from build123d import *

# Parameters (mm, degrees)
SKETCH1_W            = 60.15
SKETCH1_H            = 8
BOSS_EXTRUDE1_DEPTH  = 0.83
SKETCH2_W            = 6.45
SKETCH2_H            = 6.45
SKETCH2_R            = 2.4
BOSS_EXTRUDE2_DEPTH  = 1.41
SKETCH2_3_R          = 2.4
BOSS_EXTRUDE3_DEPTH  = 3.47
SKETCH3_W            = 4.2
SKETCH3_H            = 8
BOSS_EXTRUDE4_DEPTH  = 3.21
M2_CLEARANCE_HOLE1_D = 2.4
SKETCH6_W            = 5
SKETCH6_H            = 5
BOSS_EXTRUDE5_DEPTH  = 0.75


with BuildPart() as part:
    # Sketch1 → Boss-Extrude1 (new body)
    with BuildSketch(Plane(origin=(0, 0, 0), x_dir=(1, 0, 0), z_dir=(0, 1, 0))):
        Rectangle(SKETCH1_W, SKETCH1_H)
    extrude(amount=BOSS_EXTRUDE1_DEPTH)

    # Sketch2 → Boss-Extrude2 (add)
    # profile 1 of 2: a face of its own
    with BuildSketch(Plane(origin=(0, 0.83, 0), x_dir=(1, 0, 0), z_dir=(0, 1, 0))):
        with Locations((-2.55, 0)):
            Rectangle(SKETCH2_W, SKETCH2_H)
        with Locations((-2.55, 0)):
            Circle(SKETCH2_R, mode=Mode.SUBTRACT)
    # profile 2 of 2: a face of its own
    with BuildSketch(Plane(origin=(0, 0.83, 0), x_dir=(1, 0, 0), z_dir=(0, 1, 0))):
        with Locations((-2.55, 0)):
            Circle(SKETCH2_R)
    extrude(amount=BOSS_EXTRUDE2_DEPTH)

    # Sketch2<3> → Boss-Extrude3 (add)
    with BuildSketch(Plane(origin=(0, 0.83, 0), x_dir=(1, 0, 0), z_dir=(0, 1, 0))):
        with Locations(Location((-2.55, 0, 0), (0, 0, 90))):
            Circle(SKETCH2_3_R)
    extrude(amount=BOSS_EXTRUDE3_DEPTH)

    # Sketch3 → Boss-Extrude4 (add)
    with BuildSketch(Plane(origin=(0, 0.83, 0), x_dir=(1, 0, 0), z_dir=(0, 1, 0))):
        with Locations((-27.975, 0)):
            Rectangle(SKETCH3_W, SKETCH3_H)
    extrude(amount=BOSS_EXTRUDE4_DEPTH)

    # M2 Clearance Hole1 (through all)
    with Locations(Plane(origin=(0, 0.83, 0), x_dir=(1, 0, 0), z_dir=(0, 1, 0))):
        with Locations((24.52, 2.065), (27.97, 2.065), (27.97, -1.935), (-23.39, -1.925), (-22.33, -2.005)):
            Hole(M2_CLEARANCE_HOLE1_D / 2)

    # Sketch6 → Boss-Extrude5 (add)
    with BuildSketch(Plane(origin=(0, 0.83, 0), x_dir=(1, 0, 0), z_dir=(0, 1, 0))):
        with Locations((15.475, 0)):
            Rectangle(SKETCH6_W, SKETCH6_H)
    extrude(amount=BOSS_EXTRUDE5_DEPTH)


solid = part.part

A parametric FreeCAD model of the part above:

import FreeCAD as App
import Part
import Sketcher
Q = App.Units.Quantity

doc = App.newDocument("Part")
params = doc.addObject("Spreadsheet::Sheet", "Params")
for row, (alias, value) in enumerate([
    ("sketch1_height", "8 mm"),
    ("sketch1_width", "60.15 mm"),
    ("pad1_length", "0.83 mm"),
    ("sketch2_width", "6.45 mm"),
    ("pad2_length", "1.41 mm"),
    ("sketch3_diameter", "4.8 mm"),
    ("pad3_length", "3.47 mm"),
    ("sketch4_height", "8 mm"),
    ("sketch4_width", "4.2 mm"),
    ("pad4_length", "3.21 mm"),
    ("sketch5_diameter", "2.4 mm"),
    ("hole_diameter", "2.4 mm"),
    ("sketch6_width", "5 mm"),
    ("pad5_length", "0.75 mm"),
], start=1):
    params.set(f"A{row}", alias)
    params.set(f"B{row}", "=" + value)
    params.setAlias(f"B{row}", alias)

body = doc.addObject("PartDesign::Body", "Body")

sketch1 = body.newObject("Sketcher::SketchObject", "Sketch")
sketch1.AttachmentSupport = (doc.getObject("XZ_Plane"), [""])
sketch1.MapMode = "FlatFace"
sketch1.addGeometry(Part.LineSegment(App.Vector(-30, -4, 0), App.Vector(-30, 4, 0)), False)
sketch1.addGeometry(Part.LineSegment(App.Vector(-30, 4, 0), App.Vector(30, 4, 0)), False)
sketch1.addGeometry(Part.LineSegment(App.Vector(30, 4, 0), App.Vector(30, -4, 0)), False)
sketch1.addGeometry(Part.LineSegment(App.Vector(30, -4, 0), App.Vector(-30, -4, 0)), False)
sketch1.addConstraint(Sketcher.Constraint("Coincident", 0, 2, 1, 1))
sketch1.addConstraint(Sketcher.Constraint("Coincident", 1, 2, 2, 1))
sketch1.addConstraint(Sketcher.Constraint("Coincident", 2, 2, 3, 1))
sketch1.addConstraint(Sketcher.Constraint("Coincident", 3, 2, 0, 1))
sketch1.addConstraint(Sketcher.Constraint("Vertical", 0))
sketch1.addConstraint(Sketcher.Constraint("Horizontal", 1))
sketch1.addConstraint(Sketcher.Constraint("Vertical", 2))
sketch1.addConstraint(Sketcher.Constraint("Horizontal", 3))
sketch1.addConstraint(Sketcher.Constraint("Symmetric", 0, 2, 2, 2, -1, 1))
sketch1.addConstraint(Sketcher.Constraint("DistanceY", 0, 1, 0, 2, Q("8 mm")))
sketch1.addConstraint(Sketcher.Constraint("DistanceX", 1, 1, 1, 2, Q("60.15 mm")))
sketch1.setExpression("Constraints[9]", "Params.sketch1_height")
sketch1.setExpression("Constraints[10]", "Params.sketch1_width")
pad1 = body.newObject("PartDesign::Pad", "Pad")
pad1.Profile = sketch1
pad1.setExpression("Length", "Params.pad1_length")
pad1.Reversed = True

sketch2 = body.newObject("Sketcher::SketchObject", "Sketch001")
sketch2.AttachmentSupport = (doc.getObject("XZ_Plane"), [""])
sketch2.MapMode = "FlatFace"
sketch2.AttachmentOffset = App.Placement(App.Vector(0, 0, -0.83), App.Rotation())
sketch2.addGeometry(Part.LineSegment(App.Vector(-6, -3, 0), App.Vector(-6, 3, 0)), False)
sketch2.addGeometry(Part.LineSegment(App.Vector(-6, 3, 0), App.Vector(1, 3, 0)), False)
sketch2.addGeometry(Part.LineSegment(App.Vector(1, 3, 0), App.Vector(1, -3, 0)), False)
sketch2.addGeometry(Part.LineSegment(App.Vector(1, -3, 0), App.Vector(-6, -3, 0)), False)
sketch2.addConstraint(Sketcher.Constraint("Coincident", 0, 2, 1, 1))
sketch2.addConstraint(Sketcher.Constraint("Coincident", 1, 2, 2, 1))
sketch2.addConstraint(Sketcher.Constraint("Coincident", 2, 2, 3, 1))
sketch2.addConstraint(Sketcher.Constraint("Coincident", 3, 2, 0, 1))
sketch2.addConstraint(Sketcher.Constraint("Vertical", 0))
sketch2.addConstraint(Sketcher.Constraint("Horizontal", 1))
sketch2.addConstraint(Sketcher.Constraint("Vertical", 2))
sketch2.addConstraint(Sketcher.Constraint("Horizontal", 3))
sketch2.addConstraint(Sketcher.Constraint("Equal", 3, 0))
sketch2.addConstraint(Sketcher.Constraint("DistanceX", 1, 1, 1, 2, Q("6.45 mm")))
sketch2.addConstraint(Sketcher.Constraint("DistanceX", 0, 2, -1, 1, Q("5.775 mm")))
sketch2.addConstraint(Sketcher.Constraint("DistanceY", -1, 1, 0, 2, Q("3.225 mm")))
sketch2.setExpression("Constraints[9]", "Params.sketch2_width")
pad2 = body.newObject("PartDesign::Pad", "Pad001")
pad2.Profile = sketch2
pad2.setExpression("Length", "Params.pad2_length")
pad2.Reversed = True

sketch3 = body.newObject("Sketcher::SketchObject", "Sketch002")
sketch3.AttachmentSupport = (doc.getObject("XZ_Plane"), [""])
sketch3.MapMode = "FlatFace"
sketch3.AttachmentOffset = App.Placement(App.Vector(0, 0, -0.83), App.Rotation())
sketch3.addGeometry(Part.Circle(App.Vector(-2.5, 0, 0), App.Vector(0, 0, 1), 2.4), False)
sketch3.addConstraint(Sketcher.Constraint("PointOnObject", 0, 3, -1))
sketch3.addConstraint(Sketcher.Constraint("Diameter", 0, Q("4.8 mm")))
sketch3.addConstraint(Sketcher.Constraint("DistanceX", 0, 3, -1, 1, Q("2.55 mm")))
sketch3.setExpression("Constraints[1]", "Params.sketch3_diameter")
pad3 = body.newObject("PartDesign::Pad", "Pad002")
pad3.Profile = sketch3
pad3.setExpression("Length", "Params.pad3_length")
pad3.Reversed = True

sketch4 = body.newObject("Sketcher::SketchObject", "Sketch003")
sketch4.AttachmentSupport = (doc.getObject("XZ_Plane"), [""])
sketch4.MapMode = "FlatFace"
sketch4.AttachmentOffset = App.Placement(App.Vector(0, 0, -0.83), App.Rotation())
sketch4.addGeometry(Part.LineSegment(App.Vector(-30.1, -4, 0), App.Vector(-30.1, 4, 0)), False)
sketch4.addGeometry(Part.LineSegment(App.Vector(-30.1, 4, 0), App.Vector(-25.9, 4, 0)), False)
sketch4.addGeometry(Part.LineSegment(App.Vector(-25.9, 4, 0), App.Vector(-25.9, -4, 0)), False)
sketch4.addGeometry(Part.LineSegment(App.Vector(-25.9, -4, 0), App.Vector(-30.1, -4, 0)), False)
sketch4.addConstraint(Sketcher.Constraint("Coincident", 0, 2, 1, 1))
sketch4.addConstraint(Sketcher.Constraint("Coincident", 1, 2, 2, 1))
sketch4.addConstraint(Sketcher.Constraint("Coincident", 2, 2, 3, 1))
sketch4.addConstraint(Sketcher.Constraint("Coincident", 3, 2, 0, 1))
sketch4.addConstraint(Sketcher.Constraint("Vertical", 0))
sketch4.addConstraint(Sketcher.Constraint("Horizontal", 1))
sketch4.addConstraint(Sketcher.Constraint("Vertical", 2))
sketch4.addConstraint(Sketcher.Constraint("Horizontal", 3))
sketch4.addConstraint(Sketcher.Constraint("DistanceY", 0, 1, 0, 2, Q("8 mm")))
sketch4.addConstraint(Sketcher.Constraint("DistanceX", 1, 1, 1, 2, Q("4.2 mm")))
sketch4.addConstraint(Sketcher.Constraint("DistanceY", -1, 1, 0, 2, Q("4 mm")))
sketch4.addConstraint(Sketcher.Constraint("DistanceX", 0, 2, -1, 1, Q("30.075 mm")))
sketch4.setExpression("Constraints[8]", "Params.sketch4_height")
sketch4.setExpression("Constraints[9]", "Params.sketch4_width")
pad4 = body.newObject("PartDesign::Pad", "Pad003")
pad4.Profile = sketch4
pad4.setExpression("Length", "Params.pad4_length")
pad4.Reversed = True

sketch5 = body.newObject("Sketcher::SketchObject", "Sketch004")
sketch5.AttachmentSupport = (doc.getObject("XZ_Plane"), [""])
sketch5.MapMode = "FlatFace"
sketch5.AttachmentOffset = App.Placement(App.Vector(0, 0, -0.83), App.Rotation())
sketch5.addGeometry(Part.Circle(App.Vector(24.5, -2.1, 0), App.Vector(0, 0, 1), 1.2), False)
sketch5.addGeometry(Part.Circle(App.Vector(28, -2.1, 0), App.Vector(0, 0, 1), 1.2), False)
sketch5.addGeometry(Part.Circle(App.Vector(28, 1.9, 0), App.Vector(0, 0, 1), 1.2), False)
sketch5.addGeometry(Part.Circle(App.Vector(-23.4, 1.9, 0), App.Vector(0, 0, 1), 1.2), False)
sketch5.addGeometry(Part.Circle(App.Vector(-22.3, 2, 0), App.Vector(0, 0, 1), 1.2), False)
sketch5.addConstraint(Sketcher.Constraint("Equal", 0, 1))
sketch5.addConstraint(Sketcher.Constraint("Equal", 1, 2))
sketch5.addConstraint(Sketcher.Constraint("Equal", 2, 3))
sketch5.addConstraint(Sketcher.Constraint("Equal", 3, 4))
sketch5.addConstraint(Sketcher.Constraint("Horizontal", 0, 3, 1, 3))
sketch5.addConstraint(Sketcher.Constraint("Vertical", 1, 3, 2, 3))
sketch5.addConstraint(Sketcher.Constraint("Diameter", 0, Q("2.4 mm")))
sketch5.addConstraint(Sketcher.Constraint("DistanceY", 1, 3, 2, 3, Q("4 mm")))
sketch5.addConstraint(Sketcher.Constraint("DistanceX", 4, 3, 2, 3, Q("50.3 mm")))
sketch5.addConstraint(Sketcher.Constraint("DistanceX", -1, 1, 0, 3, Q("24.52 mm")))
sketch5.addConstraint(Sketcher.Constraint("DistanceX", -1, 1, 1, 3, Q("27.97 mm")))
sketch5.addConstraint(Sketcher.Constraint("DistanceX", 3, 3, -1, 1, Q("23.39 mm")))
sketch5.addConstraint(Sketcher.Constraint("DistanceY", 0, 3, 3, 3, Q("3.99 mm")))
sketch5.addConstraint(Sketcher.Constraint("DistanceY", 3, 3, 4, 3, Q("0.08 mm")))
sketch5.addConstraint(Sketcher.Constraint("DistanceY", 0, 3, -1, 1, Q("2.065 mm")))
sketch5.setExpression("Constraints[6]", "Params.sketch5_diameter")
doc.recompute()
hole = body.newObject("PartDesign::Hole", "Hole")
hole.Profile = sketch5
hole.ThreadType = "None"
hole.setExpression("Diameter", "Params.hole_diameter")
hole.DepthType = "ThroughAll"
hole.Reversed = True

sketch6 = body.newObject("Sketcher::SketchObject", "Sketch005")
sketch6.AttachmentSupport = (doc.getObject("XZ_Plane"), [""])
sketch6.MapMode = "FlatFace"
sketch6.AttachmentOffset = App.Placement(App.Vector(0, 0, -0.83), App.Rotation())
sketch6.addGeometry(Part.LineSegment(App.Vector(13, -2, 0), App.Vector(13, 2, 0)), False)
sketch6.addGeometry(Part.LineSegment(App.Vector(13, 2, 0), App.Vector(18, 2, 0)), False)
sketch6.addGeometry(Part.LineSegment(App.Vector(18, 2, 0), App.Vector(18, -2, 0)), False)
sketch6.addGeometry(Part.LineSegment(App.Vector(18, -2, 0), App.Vector(13, -2, 0)), False)
sketch6.addConstraint(Sketcher.Constraint("Coincident", 0, 2, 1, 1))
sketch6.addConstraint(Sketcher.Constraint("Coincident", 1, 2, 2, 1))
sketch6.addConstraint(Sketcher.Constraint("Coincident", 2, 2, 3, 1))
sketch6.addConstraint(Sketcher.Constraint("Coincident", 3, 2, 0, 1))
sketch6.addConstraint(Sketcher.Constraint("Vertical", 0))
sketch6.addConstraint(Sketcher.Constraint("Horizontal", 1))
sketch6.addConstraint(Sketcher.Constraint("Vertical", 2))
sketch6.addConstraint(Sketcher.Constraint("Horizontal", 3))
sketch6.addConstraint(Sketcher.Constraint("Equal", 3, 0))
sketch6.addConstraint(Sketcher.Constraint("DistanceX", 1, 1, 1, 2, Q("5 mm")))
sketch6.addConstraint(Sketcher.Constraint("DistanceY", -1, 1, 0, 2, Q("2.5 mm")))
sketch6.addConstraint(Sketcher.Constraint("DistanceX", -1, 1, 0, 2, Q("12.975 mm")))
sketch6.setExpression("Constraints[9]", "Params.sketch6_width")
pad5 = body.newObject("PartDesign::Pad", "Pad004")
pad5.Profile = sketch6
pad5.setExpression("Length", "Params.pad5_length")
pad5.Reversed = True

doc.recompute()
